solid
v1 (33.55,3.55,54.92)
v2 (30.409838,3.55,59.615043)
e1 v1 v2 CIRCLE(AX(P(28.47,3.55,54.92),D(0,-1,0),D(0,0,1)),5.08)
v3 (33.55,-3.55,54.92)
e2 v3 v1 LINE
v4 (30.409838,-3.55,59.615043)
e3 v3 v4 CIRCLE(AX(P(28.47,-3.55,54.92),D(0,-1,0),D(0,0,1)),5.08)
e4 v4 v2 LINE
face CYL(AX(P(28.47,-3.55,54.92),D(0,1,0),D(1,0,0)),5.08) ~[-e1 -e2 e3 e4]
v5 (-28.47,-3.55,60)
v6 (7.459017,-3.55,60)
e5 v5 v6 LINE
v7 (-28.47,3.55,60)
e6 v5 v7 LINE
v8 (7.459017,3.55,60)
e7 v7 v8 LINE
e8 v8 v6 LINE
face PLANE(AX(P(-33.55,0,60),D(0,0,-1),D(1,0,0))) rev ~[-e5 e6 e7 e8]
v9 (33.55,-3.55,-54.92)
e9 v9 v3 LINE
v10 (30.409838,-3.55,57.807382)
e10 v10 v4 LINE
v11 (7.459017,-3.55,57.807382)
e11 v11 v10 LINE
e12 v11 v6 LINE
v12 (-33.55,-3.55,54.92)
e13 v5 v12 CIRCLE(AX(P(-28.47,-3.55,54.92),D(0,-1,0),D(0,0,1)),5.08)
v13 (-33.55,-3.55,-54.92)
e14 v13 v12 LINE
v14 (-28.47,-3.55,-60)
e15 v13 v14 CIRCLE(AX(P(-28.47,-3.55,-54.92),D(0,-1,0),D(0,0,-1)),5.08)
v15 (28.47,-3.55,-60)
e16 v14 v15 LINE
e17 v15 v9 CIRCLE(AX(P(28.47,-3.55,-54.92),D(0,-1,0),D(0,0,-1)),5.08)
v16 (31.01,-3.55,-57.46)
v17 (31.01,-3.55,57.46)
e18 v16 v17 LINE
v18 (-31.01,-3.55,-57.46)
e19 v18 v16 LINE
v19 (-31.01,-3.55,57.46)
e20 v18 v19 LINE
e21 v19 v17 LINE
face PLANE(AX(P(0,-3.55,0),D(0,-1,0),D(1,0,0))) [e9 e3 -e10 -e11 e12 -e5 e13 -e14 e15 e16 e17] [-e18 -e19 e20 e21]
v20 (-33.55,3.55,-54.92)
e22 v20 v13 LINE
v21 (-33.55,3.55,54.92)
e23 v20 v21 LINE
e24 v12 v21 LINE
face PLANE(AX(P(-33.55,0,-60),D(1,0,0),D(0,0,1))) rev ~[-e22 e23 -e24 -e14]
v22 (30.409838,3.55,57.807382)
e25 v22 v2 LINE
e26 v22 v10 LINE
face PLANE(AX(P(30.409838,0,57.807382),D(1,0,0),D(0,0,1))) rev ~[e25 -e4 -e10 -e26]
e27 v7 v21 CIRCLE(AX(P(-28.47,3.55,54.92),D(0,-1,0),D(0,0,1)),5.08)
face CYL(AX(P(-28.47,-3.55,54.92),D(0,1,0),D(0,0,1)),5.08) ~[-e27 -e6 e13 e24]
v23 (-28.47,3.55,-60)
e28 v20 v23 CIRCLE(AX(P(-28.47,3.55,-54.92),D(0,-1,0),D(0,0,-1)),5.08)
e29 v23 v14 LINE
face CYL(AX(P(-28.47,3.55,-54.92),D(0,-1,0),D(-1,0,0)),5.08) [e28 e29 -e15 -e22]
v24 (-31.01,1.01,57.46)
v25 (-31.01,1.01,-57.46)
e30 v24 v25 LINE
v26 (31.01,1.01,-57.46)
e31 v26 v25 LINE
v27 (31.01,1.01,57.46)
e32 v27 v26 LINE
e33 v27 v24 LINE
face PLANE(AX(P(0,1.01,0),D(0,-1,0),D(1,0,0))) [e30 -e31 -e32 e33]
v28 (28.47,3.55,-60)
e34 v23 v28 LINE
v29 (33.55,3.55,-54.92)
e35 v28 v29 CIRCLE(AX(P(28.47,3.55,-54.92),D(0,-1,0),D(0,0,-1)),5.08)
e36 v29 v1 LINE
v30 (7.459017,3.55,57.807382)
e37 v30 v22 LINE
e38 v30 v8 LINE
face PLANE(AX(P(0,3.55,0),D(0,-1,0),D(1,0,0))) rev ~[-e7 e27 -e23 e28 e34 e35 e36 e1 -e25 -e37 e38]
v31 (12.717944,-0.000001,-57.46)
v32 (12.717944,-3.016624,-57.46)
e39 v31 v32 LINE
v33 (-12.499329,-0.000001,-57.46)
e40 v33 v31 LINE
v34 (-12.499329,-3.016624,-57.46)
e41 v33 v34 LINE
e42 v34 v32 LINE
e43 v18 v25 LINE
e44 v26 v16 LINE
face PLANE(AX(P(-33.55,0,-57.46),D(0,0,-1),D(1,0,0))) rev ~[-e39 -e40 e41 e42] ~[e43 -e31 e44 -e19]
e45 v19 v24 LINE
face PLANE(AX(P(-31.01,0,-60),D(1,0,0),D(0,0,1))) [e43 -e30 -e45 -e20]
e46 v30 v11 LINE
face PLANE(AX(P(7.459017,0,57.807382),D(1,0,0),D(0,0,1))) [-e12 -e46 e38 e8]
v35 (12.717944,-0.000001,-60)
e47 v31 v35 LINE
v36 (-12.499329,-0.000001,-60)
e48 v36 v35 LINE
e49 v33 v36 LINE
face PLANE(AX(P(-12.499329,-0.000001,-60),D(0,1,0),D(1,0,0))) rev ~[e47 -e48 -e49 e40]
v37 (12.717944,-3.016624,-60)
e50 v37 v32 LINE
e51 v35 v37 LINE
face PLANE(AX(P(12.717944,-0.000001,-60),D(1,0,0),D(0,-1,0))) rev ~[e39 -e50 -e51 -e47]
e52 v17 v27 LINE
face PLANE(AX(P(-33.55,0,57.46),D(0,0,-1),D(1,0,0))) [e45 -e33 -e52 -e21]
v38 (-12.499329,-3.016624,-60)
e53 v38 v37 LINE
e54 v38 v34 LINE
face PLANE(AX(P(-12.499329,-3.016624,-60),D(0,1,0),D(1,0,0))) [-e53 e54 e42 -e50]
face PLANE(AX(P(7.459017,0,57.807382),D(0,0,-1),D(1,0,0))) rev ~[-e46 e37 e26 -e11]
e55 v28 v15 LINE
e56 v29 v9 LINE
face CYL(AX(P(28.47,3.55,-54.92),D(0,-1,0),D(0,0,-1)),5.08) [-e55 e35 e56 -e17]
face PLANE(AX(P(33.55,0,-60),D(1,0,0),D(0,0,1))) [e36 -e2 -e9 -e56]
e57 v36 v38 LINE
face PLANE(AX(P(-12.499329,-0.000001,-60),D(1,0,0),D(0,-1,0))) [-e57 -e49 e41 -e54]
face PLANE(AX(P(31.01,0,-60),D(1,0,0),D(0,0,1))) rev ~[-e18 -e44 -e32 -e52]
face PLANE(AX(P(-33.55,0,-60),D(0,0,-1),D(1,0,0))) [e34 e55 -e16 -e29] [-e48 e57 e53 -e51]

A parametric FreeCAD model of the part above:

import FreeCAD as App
import Part
import Sketcher
from FreeCAD import Vector
Q = App.Units.Quantity


def edges_at(feature, points):
    """Names of the edges that pass closest to the given points."""
    edges = feature.Shape.Edges
    near = lambda p: min(range(len(edges)), key=lambda i: edges[i].distToShape(Part.Vertex(*p))[0])
    return sorted({f"Edge{near(p) + 1}" for p in points})


def faces_at(feature, points):
    """Names of the faces that lie closest to the given points."""
    faces = feature.Shape.Faces
    near = lambda p: min(range(len(faces)), key=lambda i: faces[i].distToShape(Part.Vertex(*p))[0])
    return sorted({f"Face{near(p) + 1}" for p in points})


def add_polygon(sketch, points):
    """Adds a closed chain of lines whose ends are joined by coincident constraints."""
    first, n = sketch.GeometryCount, len(points)
    for a, b in zip(points, points[1:] + points[:1]):
        sketch.addGeometry(Part.LineSegment(App.Vector(*a, 0), App.Vector(*b, 0)), False)
    for i in range(n):
        sketch.addConstraint(Sketcher.Constraint("Coincident", first + i, 2, first + (i + 1) % n, 1))

doc = App.newDocument("Part")
body = doc.addObject("PartDesign::Body", "Body")

# Sketch on XZ plane
sketch1 = body.newObject("Sketcher::SketchObject", "Sketch")
sketch1.AttachmentSupport = (doc.getObject("XZ_Plane"), [""])
sketch1.MapMode = "FlatFace"
add_polygon(sketch1, [(-34, 60), (-34, -60), (34, -60), (34, 60)])  # lines 0-3
sketch1.addConstraint([
    Sketcher.Constraint("Vertical", 0),
    Sketcher.Constraint("Horizontal", 1),
    Sketcher.Constraint("Vertical", 2),
    Sketcher.Constraint("Horizontal", 3),
    Sketcher.Constraint("Symmetric", 0, 2, 2, 2, -1, 1),
    Sketcher.Constraint("DistanceY", 0, 2, 0, 1, Q("120 mm")),
    Sketcher.Constraint("DistanceX", 1, 1, 1, 2, Q("67.1 mm")),
])
pad1 = body.newObject("PartDesign::Pad", "Pad")
pad1.Profile = sketch1
pad1.Length = 7.1
pad1.Midplane = True
doc.recompute()

thickness = body.newObject("PartDesign::Thickness", "Thickness")
thickness.Base = (pad1, faces_at(pad1, [(0, -3.55, 0)]))
thickness.Value = 2.54
thickness.Reversed = True
thickness.Join = "Arc"
doc.recompute()

fillet = body.newObject("PartDesign::Fillet", "Fillet")
fillet.Base = (thickness, edges_at(thickness, [(33.55, 0, 60)]))
fillet.Radius = 5.08
doc.recompute()

fillet2 = body.newObject("PartDesign::Fillet", "Fillet001")
fillet2.Base = (fillet, edges_at(fillet, [(-33.55, 0, 60)]))
fillet2.Radius = 5.08
doc.recompute()

fillet3 = body.newObject("PartDesign::Fillet", "Fillet002")
fillet3.Base = (fillet2, edges_at(fillet2, [(-33.55, 0, -60)]))
fillet3.Radius = 5.08
doc.recompute()

fillet4 = body.newObject("PartDesign::Fillet", "Fillet003")
fillet4.Base = (fillet3, edges_at(fillet3, [(33.55, 0, -60)]))
fillet4.Radius = 5.08

# Sketch on XZ plane
sketch2 = body.newObject("Sketcher::SketchObject", "Sketch001")
sketch2.AttachmentSupport = (doc.getObject("XZ_Plane"), [""])
sketch2.MapMode = "FlatFace"
add_polygon(sketch2, [(7, 66), (7, 58), (30, 58), (30, 66)])  # lines 0-3
sketch2.addConstraint([
    Sketcher.Constraint("Vertical", 0),
    Sketcher.Constraint("Horizontal", 1),
    Sketcher.Constraint("Vertical", 2),
    Sketcher.Constraint("Horizontal", 3),
    Sketcher.Constraint("DistanceX", 1, 1, 1, 2, Q("22.950821 mm")),
    Sketcher.Constraint("DistanceY", 0, 2, 0, 1, Q("8.032788 mm")),
    Sketcher.Constraint("DistanceY", -1, 1, 0, 2, Q("57.807382 mm")),
    Sketcher.Constraint("DistanceX", -1, 1, 1, 2, Q("30.409838 mm")),
])
pocket1 = body.newObject("PartDesign::Pocket", "Pocket")
pocket1.Profile = sketch2
pocket1.Length = 25
pocket1.Midplane = True

# Sketch on XY plane
sketch3 = body.newObject("Sketcher::SketchObject", "Sketch002")
sketch3.AttachmentSupport = (doc.getObject("XY_Plane"), [""])
sketch3.MapMode = "FlatFace"
sketch3.AttachmentOffset = App.Placement(Vector(0, 0, -60), App.Rotation())
add_polygon(sketch3, [(-12.5, -3), (-12.5, 0), (12.7, 0), (12.7, -3)])  # lines 0-3
sketch3.addConstraint([
    Sketcher.Constraint("Vertical", 0),
    Sketcher.Constraint("Horizontal", 1),
    Sketcher.Constraint("Vertical", 2),
    Sketcher.Constraint("Horizontal", 3),
    Sketcher.Constraint("PointOnObject", 0, 2, -1),
    Sketcher.Constraint("DistanceX", 1, 1, 1, 2, Q("25.217273 mm")),
    Sketcher.Constraint("DistanceY", 0, 1, 0, 2, Q("3.016623 mm")),
    Sketcher.Constraint("DistanceX", 0, 2, -1, 1, Q("12.499329 mm")),
])
pocket2 = body.newObject("PartDesign::Pocket", "Pocket001")
pocket2.Profile = sketch3
pocket2.Length = 25
pocket2.Midplane = True

doc.recompute()
